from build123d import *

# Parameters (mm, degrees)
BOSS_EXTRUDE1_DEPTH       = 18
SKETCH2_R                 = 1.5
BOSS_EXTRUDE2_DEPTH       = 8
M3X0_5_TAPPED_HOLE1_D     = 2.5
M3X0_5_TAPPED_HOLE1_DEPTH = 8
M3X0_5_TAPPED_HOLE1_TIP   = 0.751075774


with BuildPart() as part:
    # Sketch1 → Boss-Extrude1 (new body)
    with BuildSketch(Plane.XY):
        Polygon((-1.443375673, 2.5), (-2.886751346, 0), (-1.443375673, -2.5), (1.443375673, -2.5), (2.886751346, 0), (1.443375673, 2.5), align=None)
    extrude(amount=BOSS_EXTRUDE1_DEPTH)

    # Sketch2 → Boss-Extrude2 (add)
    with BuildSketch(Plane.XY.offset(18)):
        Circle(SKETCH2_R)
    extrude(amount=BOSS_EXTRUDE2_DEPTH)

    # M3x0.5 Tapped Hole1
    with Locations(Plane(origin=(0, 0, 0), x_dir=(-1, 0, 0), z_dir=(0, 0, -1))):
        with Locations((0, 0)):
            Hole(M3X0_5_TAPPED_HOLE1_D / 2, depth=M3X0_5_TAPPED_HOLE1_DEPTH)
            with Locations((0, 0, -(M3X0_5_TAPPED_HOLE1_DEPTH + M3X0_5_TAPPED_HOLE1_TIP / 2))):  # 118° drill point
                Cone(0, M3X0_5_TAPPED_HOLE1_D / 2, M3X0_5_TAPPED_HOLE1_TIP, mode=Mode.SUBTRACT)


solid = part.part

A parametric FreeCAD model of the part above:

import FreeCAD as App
import Part
import Sketcher
from FreeCAD import Vector
Q = App.Units.Quantity

doc = App.newDocument("Part")
body = doc.addObject("PartDesign::Body", "Body")

# Sketch on XY plane
sketch1 = doc.addObject("Sketcher::SketchObject", "Sketch")
body.addObject(sketch1)
sketch1.AttachmentSupport = (doc.XY_Plane, [""])
sketch1.MapMode = "FlatFace"
sketch1.addGeometry(Part.LineSegment(Vector(-1.4, 2.5, 0), Vector(-2.9, 0, 0)), False)
sketch1.addGeometry(Part.LineSegment(Vector(-2.9, 0, 0), Vector(-1.4, -2.5, 0)), False)
sketch1.addGeometry(Part.LineSegment(Vector(-1.4, -2.5, 0), Vector(1.4, -2.5, 0)), False)
sketch1.addGeometry(Part.LineSegment(Vector(1.4, -2.5, 0), Vector(2.9, 0, 0)), False)
sketch1.addGeometry(Part.LineSegment(Vector(2.9, 0, 0), Vector(1.4, 2.5, 0)), False)
sketch1.addGeometry(Part.LineSegment(Vector(1.4, 2.5, 0), Vector(-1.4, 2.5, 0)), False)
sketch1.addConstraint(Sketcher.Constraint("Coincident", 0, 2, 1, 1))
sketch1.addConstraint(Sketcher.Constraint("Coincident", 1, 2, 2, 1))
sketch1.addConstraint(Sketcher.Constraint("Coincident", 2, 2, 3, 1))
sketch1.addConstraint(Sketcher.Constraint("Coincident", 3, 2, 4, 1))
sketch1.addConstraint(Sketcher.Constraint("Coincident", 4, 2, 5, 1))
sketch1.addConstraint(Sketcher.Constraint("Coincident", 5, 2, 0, 1))
sketch1.addConstraint(Sketcher.Constraint("Horizontal", 2))
sketch1.addConstraint(Sketcher.Constraint("Horizontal", 5))
sketch1.addConstraint(Sketcher.Constraint("Symmetric", 0, 2, 3, 2, -1, 1))
sketch1.addConstraint(Sketcher.Constraint("Symmetric", 1, 2, 4, 2, -1, 1))
sketch1.addConstraint(Sketcher.Constraint("PointOnObject", 0, 2, -1))
sketch1.addConstraint(Sketcher.Constraint("Parallel", 0, 3))
sketch1.addConstraint(Sketcher.Constraint("Vertical", 2, 2, 4, 2))
sketch1.addConstraint(Sketcher.Constraint("Angle", 0, Q("-120 deg")))
sketch1.addConstraint(Sketcher.Constraint("DistanceY", 2, 2, 4, 2, 5.0))
sketch1.addConstraint(Sketcher.Constraint("DistanceX", 2, 1, 2, 2, 2.886751))
pad1 = doc.addObject("PartDesign::Pad", "Pad")
body.addObject(pad1)
pad1.Profile = sketch1
pad1.Length = 18

# Sketch on XY plane
sketch2 = doc.addObject("Sketcher::SketchObject", "Sketch001")
body.addObject(sketch2)
sketch2.AttachmentSupport = (doc.XY_Plane, [""])
sketch2.MapMode = "FlatFace"
sketch2.AttachmentOffset = App.Placement(Vector(0, 0, 18), App.Rotation())
sketch2.addGeometry(Part.Circle(Vector(0, 0, 0), Vector(0, 0, 1), 1.5), False)
sketch2.addConstraint(Sketcher.Constraint("Coincident", 0, 3, -1, 1))
sketch2.addConstraint(Sketcher.Constraint("Diameter", 0, 3.0))
pad2 = doc.addObject("PartDesign::Pad", "Pad001")
body.addObject(pad2)
pad2.Profile = sketch2
pad2.Length = 8

# Sketch on XY plane
sketch3 = doc.addObject("Sketcher::SketchObject", "Sketch002")
body.addObject(sketch3)
sketch3.AttachmentSupport = (doc.XY_Plane, [""])
sketch3.MapMode = "FlatFace"
sketch3.addGeometry(Part.Circle(Vector(0, 0, 0), Vector(0, 0, 1), 1.2), False)
sketch3.addConstraint(Sketcher.Constraint("Coincident", 0, 3, -1, 1))
sketch3.addConstraint(Sketcher.Constraint("Diameter", 0, 2.5))
doc.recompute()
hole = doc.addObject("PartDesign::Hole", "Hole")
body.addObject(hole)
hole.Profile = sketch3
hole.ThreadType = "None"
hole.Diameter = 2.5
hole.DepthType = "Dimension"
hole.Depth = 8
hole.DrillPoint = "Angled"
hole.DrillPointAngle = 118
hole.Reversed = True

doc.recompute()
